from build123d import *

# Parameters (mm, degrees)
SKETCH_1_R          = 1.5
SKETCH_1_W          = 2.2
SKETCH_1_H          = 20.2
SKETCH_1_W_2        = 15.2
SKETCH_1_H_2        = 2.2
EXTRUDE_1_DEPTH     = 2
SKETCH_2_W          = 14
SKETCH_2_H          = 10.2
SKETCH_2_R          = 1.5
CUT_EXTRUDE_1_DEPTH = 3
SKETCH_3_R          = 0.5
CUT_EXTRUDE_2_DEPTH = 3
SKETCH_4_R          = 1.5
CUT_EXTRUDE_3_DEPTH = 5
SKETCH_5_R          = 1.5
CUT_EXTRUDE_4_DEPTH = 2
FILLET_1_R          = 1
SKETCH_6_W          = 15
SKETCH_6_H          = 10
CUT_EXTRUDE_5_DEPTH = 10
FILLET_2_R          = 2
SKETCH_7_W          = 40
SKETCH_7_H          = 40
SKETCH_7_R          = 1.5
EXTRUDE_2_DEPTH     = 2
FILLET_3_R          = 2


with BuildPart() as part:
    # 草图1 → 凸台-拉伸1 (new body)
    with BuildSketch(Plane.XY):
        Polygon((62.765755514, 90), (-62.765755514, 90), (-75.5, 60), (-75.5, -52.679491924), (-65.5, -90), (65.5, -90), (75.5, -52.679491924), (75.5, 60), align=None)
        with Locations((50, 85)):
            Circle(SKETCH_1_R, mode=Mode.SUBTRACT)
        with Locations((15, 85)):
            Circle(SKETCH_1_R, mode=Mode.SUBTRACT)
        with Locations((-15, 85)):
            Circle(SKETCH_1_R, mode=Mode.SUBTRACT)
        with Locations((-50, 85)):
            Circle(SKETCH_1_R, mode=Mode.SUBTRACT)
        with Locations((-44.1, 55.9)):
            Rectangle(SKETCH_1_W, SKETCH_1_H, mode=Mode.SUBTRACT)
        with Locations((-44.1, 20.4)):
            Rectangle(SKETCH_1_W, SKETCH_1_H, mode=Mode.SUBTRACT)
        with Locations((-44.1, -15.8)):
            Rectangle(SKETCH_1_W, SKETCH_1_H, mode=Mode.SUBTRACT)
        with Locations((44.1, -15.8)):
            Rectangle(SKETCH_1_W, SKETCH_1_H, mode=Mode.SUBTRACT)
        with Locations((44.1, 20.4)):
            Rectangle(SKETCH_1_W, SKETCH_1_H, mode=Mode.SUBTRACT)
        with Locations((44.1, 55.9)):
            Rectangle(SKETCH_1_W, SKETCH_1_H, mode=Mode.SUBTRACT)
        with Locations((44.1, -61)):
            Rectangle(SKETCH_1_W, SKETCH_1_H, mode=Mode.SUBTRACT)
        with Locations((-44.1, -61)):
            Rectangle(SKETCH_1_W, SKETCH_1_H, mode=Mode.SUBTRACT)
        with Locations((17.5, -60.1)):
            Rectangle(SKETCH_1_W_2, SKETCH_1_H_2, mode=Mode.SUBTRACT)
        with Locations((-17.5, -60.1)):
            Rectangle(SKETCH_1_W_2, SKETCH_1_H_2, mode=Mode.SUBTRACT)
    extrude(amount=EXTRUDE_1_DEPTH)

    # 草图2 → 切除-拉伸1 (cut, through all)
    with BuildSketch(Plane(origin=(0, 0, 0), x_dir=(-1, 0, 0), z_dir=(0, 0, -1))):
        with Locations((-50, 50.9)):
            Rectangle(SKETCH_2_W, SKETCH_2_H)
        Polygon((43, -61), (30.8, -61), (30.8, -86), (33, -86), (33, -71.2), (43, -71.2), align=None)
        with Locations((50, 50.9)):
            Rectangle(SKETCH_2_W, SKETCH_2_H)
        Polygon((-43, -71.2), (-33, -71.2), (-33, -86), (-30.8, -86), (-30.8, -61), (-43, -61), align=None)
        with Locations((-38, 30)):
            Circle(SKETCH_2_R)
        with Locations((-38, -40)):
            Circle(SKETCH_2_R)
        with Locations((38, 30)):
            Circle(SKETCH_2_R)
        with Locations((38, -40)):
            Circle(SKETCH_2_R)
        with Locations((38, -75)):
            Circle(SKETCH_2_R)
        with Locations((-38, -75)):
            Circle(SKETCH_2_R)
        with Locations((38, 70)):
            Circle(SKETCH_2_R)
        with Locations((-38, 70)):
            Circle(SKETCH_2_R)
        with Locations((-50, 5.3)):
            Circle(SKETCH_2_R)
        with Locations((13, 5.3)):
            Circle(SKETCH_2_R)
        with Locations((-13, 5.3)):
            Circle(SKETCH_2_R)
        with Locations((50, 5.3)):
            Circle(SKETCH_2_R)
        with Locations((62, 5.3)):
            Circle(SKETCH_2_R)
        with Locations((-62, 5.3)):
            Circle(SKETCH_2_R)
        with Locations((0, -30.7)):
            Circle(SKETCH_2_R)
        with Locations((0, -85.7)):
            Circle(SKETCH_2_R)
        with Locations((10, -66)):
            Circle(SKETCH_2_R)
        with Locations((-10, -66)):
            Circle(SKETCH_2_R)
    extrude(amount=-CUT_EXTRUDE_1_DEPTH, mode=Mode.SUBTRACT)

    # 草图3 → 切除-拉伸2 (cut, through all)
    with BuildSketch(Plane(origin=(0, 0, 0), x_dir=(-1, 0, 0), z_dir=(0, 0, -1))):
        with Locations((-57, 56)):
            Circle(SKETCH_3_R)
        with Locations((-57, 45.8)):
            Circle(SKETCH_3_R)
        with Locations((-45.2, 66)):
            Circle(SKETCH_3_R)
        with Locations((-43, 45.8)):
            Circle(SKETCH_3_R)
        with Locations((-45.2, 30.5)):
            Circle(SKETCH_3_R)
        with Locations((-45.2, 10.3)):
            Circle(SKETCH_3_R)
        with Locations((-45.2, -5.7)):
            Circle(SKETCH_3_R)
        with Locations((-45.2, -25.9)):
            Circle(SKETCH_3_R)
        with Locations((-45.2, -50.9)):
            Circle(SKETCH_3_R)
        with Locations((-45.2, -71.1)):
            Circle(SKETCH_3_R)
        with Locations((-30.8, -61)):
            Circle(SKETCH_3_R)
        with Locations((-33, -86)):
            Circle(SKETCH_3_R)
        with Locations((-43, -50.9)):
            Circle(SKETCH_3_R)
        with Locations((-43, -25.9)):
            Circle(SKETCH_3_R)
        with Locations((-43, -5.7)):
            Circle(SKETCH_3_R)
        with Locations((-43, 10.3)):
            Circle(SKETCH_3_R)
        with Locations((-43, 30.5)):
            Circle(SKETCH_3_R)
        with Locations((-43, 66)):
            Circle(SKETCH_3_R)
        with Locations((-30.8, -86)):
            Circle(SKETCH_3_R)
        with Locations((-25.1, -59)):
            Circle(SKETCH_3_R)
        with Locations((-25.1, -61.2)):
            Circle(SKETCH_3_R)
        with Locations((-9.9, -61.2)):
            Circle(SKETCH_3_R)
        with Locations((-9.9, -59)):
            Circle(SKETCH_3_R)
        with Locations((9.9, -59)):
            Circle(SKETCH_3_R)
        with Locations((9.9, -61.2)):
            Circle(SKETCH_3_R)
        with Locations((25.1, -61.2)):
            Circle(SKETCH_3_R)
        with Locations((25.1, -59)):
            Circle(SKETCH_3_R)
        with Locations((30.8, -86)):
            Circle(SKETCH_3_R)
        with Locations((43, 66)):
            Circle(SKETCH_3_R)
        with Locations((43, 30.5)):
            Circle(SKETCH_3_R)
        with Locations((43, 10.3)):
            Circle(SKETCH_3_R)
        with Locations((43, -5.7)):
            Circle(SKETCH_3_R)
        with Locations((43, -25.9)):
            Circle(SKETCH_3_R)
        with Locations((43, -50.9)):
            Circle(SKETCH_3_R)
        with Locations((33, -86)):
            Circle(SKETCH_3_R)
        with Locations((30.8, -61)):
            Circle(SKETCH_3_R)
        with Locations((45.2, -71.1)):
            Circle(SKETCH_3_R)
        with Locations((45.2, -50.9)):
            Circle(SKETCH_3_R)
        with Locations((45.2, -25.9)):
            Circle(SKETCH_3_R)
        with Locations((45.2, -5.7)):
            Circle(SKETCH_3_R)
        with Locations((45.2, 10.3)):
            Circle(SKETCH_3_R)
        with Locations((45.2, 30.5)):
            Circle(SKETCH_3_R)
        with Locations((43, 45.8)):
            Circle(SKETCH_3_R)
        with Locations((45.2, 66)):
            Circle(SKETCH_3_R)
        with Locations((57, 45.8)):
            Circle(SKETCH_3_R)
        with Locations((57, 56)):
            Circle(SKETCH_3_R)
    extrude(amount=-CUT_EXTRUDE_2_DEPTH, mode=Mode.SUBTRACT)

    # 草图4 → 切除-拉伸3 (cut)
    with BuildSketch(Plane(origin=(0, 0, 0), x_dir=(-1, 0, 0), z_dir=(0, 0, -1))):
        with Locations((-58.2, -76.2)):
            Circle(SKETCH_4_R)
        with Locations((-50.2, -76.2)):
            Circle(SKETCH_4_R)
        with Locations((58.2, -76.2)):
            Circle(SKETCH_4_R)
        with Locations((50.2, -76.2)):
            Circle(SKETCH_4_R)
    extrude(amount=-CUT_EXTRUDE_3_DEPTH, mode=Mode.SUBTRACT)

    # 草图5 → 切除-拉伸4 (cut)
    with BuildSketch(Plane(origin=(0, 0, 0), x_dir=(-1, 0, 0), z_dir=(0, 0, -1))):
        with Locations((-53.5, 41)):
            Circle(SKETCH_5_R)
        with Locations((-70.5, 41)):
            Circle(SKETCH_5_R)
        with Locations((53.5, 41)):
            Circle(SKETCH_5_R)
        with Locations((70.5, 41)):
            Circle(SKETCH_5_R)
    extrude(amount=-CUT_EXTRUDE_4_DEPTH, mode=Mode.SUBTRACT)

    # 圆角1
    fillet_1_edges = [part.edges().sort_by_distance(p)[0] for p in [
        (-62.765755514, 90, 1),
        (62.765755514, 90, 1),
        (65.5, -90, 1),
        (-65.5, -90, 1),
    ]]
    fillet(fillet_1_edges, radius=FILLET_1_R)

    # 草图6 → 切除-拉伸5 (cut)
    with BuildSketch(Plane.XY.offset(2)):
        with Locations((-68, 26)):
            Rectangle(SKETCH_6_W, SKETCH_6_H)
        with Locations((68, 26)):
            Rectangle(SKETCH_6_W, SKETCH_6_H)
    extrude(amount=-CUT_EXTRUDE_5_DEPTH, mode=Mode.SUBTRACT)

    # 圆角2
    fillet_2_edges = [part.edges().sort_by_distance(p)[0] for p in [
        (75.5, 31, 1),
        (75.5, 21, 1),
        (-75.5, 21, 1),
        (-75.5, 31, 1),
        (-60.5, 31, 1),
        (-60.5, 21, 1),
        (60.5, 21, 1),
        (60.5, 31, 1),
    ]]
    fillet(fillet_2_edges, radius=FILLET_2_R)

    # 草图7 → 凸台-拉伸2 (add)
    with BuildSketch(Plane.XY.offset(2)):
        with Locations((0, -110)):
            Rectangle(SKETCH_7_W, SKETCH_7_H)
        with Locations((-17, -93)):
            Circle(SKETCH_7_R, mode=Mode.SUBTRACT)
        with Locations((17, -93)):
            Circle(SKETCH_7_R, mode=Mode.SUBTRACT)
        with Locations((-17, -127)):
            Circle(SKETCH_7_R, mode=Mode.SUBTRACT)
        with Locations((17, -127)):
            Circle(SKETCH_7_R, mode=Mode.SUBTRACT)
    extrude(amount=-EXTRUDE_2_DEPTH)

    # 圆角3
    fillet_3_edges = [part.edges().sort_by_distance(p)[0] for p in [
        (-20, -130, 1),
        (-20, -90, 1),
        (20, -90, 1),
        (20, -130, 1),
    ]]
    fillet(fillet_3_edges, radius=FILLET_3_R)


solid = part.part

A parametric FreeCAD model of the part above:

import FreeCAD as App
import Part
import Sketcher
from FreeCAD import Vector
Q = App.Units.Quantity


def edges_at(feature, points):
    """Names of the edges that pass closest to the given points."""
    edges = feature.Shape.Edges
    near = lambda p: min(range(len(edges)), key=lambda i: edges[i].distToShape(Part.Vertex(*p))[0])
    return sorted({f"Edge{near(p) + 1}" for p in points})

doc = App.newDocument("Part")
body = doc.addObject("PartDesign::Body", "Body")

# Sketch on XY plane
sketch1 = body.newObject("Sketcher::SketchObject", "Sketch")
sketch1.AttachmentSupport = (doc.getObject("XY_Plane"), [""])
sketch1.MapMode = "FlatFace"
sketch1.addGeometry([
    Part.LineSegment(Vector(62.8, 90, 0), Vector(-62.8, 90, 0)),  # 0
    Part.LineSegment(Vector(-62.8, 90, 0), Vector(-75.5, 60, 0)),  # 1
    Part.LineSegment(Vector(-75.5, 60, 0), Vector(-75.5, -52.7, 0)),  # 2
    Part.LineSegment(Vector(-75.5, -52.7, 0), Vector(-65.5, -90, 0)),  # 3
    Part.LineSegment(Vector(-65.5, -90, 0), Vector(65.5, -90, 0)),  # 4
    Part.LineSegment(Vector(65.5, -90, 0), Vector(75.5, -52.7, 0)),  # 5
    Part.LineSegment(Vector(75.5, -52.7, 0), Vector(75.5, 60, 0)),  # 6
    Part.LineSegment(Vector(75.5, 60, 0), Vector(62.8, 90, 0)),  # 7
    Part.LineSegment(Vector(-43, -71.1, 0), Vector(-45.2, -71.1, 0)),  # 8
    Part.LineSegment(Vector(-45.2, -71.1, 0), Vector(-45.2, -50.9, 0)),  # 9
    Part.LineSegment(Vector(-45.2, -50.9, 0), Vector(-43, -50.9, 0)),  # 10
    Part.LineSegment(Vector(-43, -50.9, 0), Vector(-43, -71.1, 0)),  # 11
    Part.LineSegment(Vector(-9.9, -61.2, 0), Vector(-25.1, -61.2, 0)),  # 12
    Part.LineSegment(Vector(-25.1, -61.2, 0), Vector(-25.1, -59, 0)),  # 13
    Part.LineSegment(Vector(-25.1, -59, 0), Vector(-9.9, -59, 0)),  # 14
    Part.LineSegment(Vector(-9.9, -59, 0), Vector(-9.9, -61.2, 0)),  # 15
    Part.LineSegment(Vector(-43, -25.9, 0), Vector(-45.2, -25.9, 0)),  # 16
    Part.LineSegment(Vector(-45.2, -25.9, 0), Vector(-45.2, -5.7, 0)),  # 17
    Part.LineSegment(Vector(-45.2, -5.7, 0), Vector(-43, -5.7, 0)),  # 18
    Part.LineSegment(Vector(-43, -5.7, 0), Vector(-43, -25.9, 0)),  # 19
    Part.LineSegment(Vector(25.1, -61.2, 0), Vector(9.9, -61.2, 0)),  # 20
    Part.LineSegment(Vector(9.9, -61.2, 0), Vector(9.9, -59, 0)),  # 21
    Part.LineSegment(Vector(9.9, -59, 0), Vector(25.1, -59, 0)),  # 22
    Part.LineSegment(Vector(25.1, -59, 0), Vector(25.1, -61.2, 0)),  # 23
    Part.LineSegment(Vector(45.2, -71.1, 0), Vector(43, -71.1, 0)),  # 24
    Part.LineSegment(Vector(43, -71.1, 0), Vector(43, -50.9, 0)),  # 25
    Part.LineSegment(Vector(43, -50.9, 0), Vector(45.2, -50.9, 0)),  # 26
    Part.LineSegment(Vector(45.2, -50.9, 0), Vector(45.2, -71.1, 0)),  # 27
    Part.LineSegment(Vector(45.2, -25.9, 0), Vector(43, -25.9, 0)),  # 28
    Part.LineSegment(Vector(43, -25.9, 0), Vector(43, -5.7, 0)),  # 29
    Part.LineSegment(Vector(43, -5.7, 0), Vector(45.2, -5.7, 0)),  # 30
    Part.LineSegment(Vector(45.2, -5.7, 0), Vector(45.2, -25.9, 0)),  # 31
    Part.LineSegment(Vector(-43, 10.3, 0), Vector(-45.2, 10.3, 0)),  # 32
    Part.LineSegment(Vector(-45.2, 10.3, 0), Vector(-45.2, 30.5, 0)),  # 33
    Part.LineSegment(Vector(-45.2, 30.5, 0), Vector(-43, 30.5, 0)),  # 34
    Part.LineSegment(Vector(-43, 30.5, 0), Vector(-43, 10.3, 0)),  # 35
    Part.LineSegment(Vector(-43, 45.8, 0), Vector(-45.2, 45.8, 0)),  # 36
    Part.LineSegment(Vector(-45.2, 45.8, 0), Vector(-45.2, 66, 0)),  # 37
    Part.LineSegment(Vector(-45.2, 66, 0), Vector(-43, 66, 0)),  # 38
    Part.LineSegment(Vector(-43, 66, 0), Vector(-43, 45.8, 0)),  # 39
    Part.Circle(Vector(-50, 85, 0), Vector(0, 0, 1), 1.5),  # 40
    Part.Circle(Vector(-15, 85, 0), Vector(0, 0, 1), 1.5),  # 41
    Part.LineSegment(Vector(45.2, 10.3, 0), Vector(43, 10.3, 0)),  # 42
    Part.LineSegment(Vector(43, 10.3, 0), Vector(43, 30.5, 0)),  # 43
    Part.LineSegment(Vector(43, 30.5, 0), Vector(45.2, 30.5, 0)),  # 44
    Part.LineSegment(Vector(45.2, 30.5, 0), Vector(45.2, 10.3, 0)),  # 45
    Part.Circle(Vector(15, 85, 0), Vector(0, 0, 1), 1.5),  # 46
    Part.LineSegment(Vector(45.2, 45.8, 0), Vector(43, 45.8, 0)),  # 47
    Part.LineSegment(Vector(43, 45.8, 0), Vector(43, 66, 0)),  # 48
    Part.LineSegment(Vector(43, 66, 0), Vector(45.2, 66, 0)),  # 49
    Part.LineSegment(Vector(45.2, 66, 0), Vector(45.2, 45.8, 0)),  # 50
    Part.Circle(Vector(50, 85, 0), Vector(0, 0, 1), 1.5),  # 51
], False)
sketch1.addConstraint([
    Sketcher.Constraint("Coincident", 0, 2, 1, 1),
    Sketcher.Constraint("Coincident", 1, 2, 2, 1),
    Sketcher.Constraint("Coincident", 2, 2, 3, 1),
    Sketcher.Constraint("Coincident", 3, 2, 4, 1),
    Sketcher.Constraint("Coincident", 4, 2, 5, 1),
    Sketcher.Constraint("Coincident", 5, 2, 6, 1),
    Sketcher.Constraint("Coincident", 6, 2, 7, 1),
    Sketcher.Constraint("Coincident", 7, 2, 0, 1),
    Sketcher.Constraint("Coincident", 8, 2, 9, 1),
    Sketcher.Constraint("Coincident", 9, 2, 10, 1),
    Sketcher.Constraint("Coincident", 10, 2, 11, 1),
    Sketcher.Constraint("Coincident", 11, 2, 8, 1),
    Sketcher.Constraint("Coincident", 12, 2, 13, 1),
    Sketcher.Constraint("Coincident", 13, 2, 14, 1),
    Sketcher.Constraint("Coincident", 14, 2, 15, 1),
    Sketcher.Constraint("Coincident", 15, 2, 12, 1),
    Sketcher.Constraint("Coincident", 16, 2, 17, 1),
    Sketcher.Constraint("Coincident", 17, 2, 18, 1),
    Sketcher.Constraint("Coincident", 18, 2, 19, 1),
    Sketcher.Constraint("Coincident", 19, 2, 16, 1),
    Sketcher.Constraint("Coincident", 20, 2, 21, 1),
    Sketcher.Constraint("Coincident", 21, 2, 22, 1),
    Sketcher.Constraint("Coincident", 22, 2, 23, 1),
    Sketcher.Constraint("Coincident", 23, 2, 20, 1),
    Sketcher.Constraint("Coincident", 24, 2, 25, 1),
    Sketcher.Constraint("Coincident", 25, 2, 26, 1),
    Sketcher.Constraint("Coincident", 26, 2, 27, 1),
    Sketcher.Constraint("Coincident", 27, 2, 24, 1),
    Sketcher.Constraint("Coincident", 28, 2, 29, 1),
    Sketcher.Constraint("Coincident", 29, 2, 30, 1),
    Sketcher.Constraint("Coincident", 30, 2, 31, 1),
    Sketcher.Constraint("Coincident", 31, 2, 28, 1),
    Sketcher.Constraint("Coincident", 32, 2, 33, 1),
    Sketcher.Constraint("Coincident", 33, 2, 34, 1),
    Sketcher.Constraint("Coincident", 34, 2, 35, 1),
    Sketcher.Constraint("Coincident", 35, 2, 32, 1),
    Sketcher.Constraint("Coincident", 36, 2, 37, 1),
    Sketcher.Constraint("Coincident", 37, 2, 38, 1),
    Sketcher.Constraint("Coincident", 38, 2, 39, 1),
    Sketcher.Constraint("Coincident", 39, 2, 36, 1),
    Sketcher.Constraint("Coincident", 42, 2, 43, 1),
    Sketcher.Constraint("Coincident", 43, 2, 44, 1),
    Sketcher.Constraint("Coincident", 44, 2, 45, 1),
    Sketcher.Constraint("Coincident", 45, 2, 42, 1),
    Sketcher.Constraint("Coincident", 47, 2, 48, 1),
    Sketcher.Constraint("Coincident", 48, 2, 49, 1),
    Sketcher.Constraint("Coincident", 49, 2, 50, 1),
    Sketcher.Constraint("Coincident", 50, 2, 47, 1),
    Sketcher.Constraint("Horizontal", 0),
    Sketcher.Constraint("Vertical", 2),
    Sketcher.Constraint("Horizontal", 4),
    Sketcher.Constraint("Vertical", 6),
    Sketcher.Constraint("Horizontal", 8),
    Sketcher.Constraint("Vertical", 9),
    Sketcher.Constraint("Horizontal", 10),
    Sketcher.Constraint("Vertical", 11),
    Sketcher.Constraint("Horizontal", 12),
    Sketcher.Constraint("Vertical", 13),
    Sketcher.Constraint("Horizontal", 14),
    Sketcher.Constraint("Vertical", 15),
    Sketcher.Constraint("Horizontal", 16),
    Sketcher.Constraint("Vertical", 17),
    Sketcher.Constraint("Horizontal", 18),
    Sketcher.Constraint("Vertical", 19),
    Sketcher.Constraint("Horizontal", 20),
    Sketcher.Constraint("Vertical", 21),
    Sketcher.Constraint("Horizontal", 22),
    Sketcher.Constraint("Vertical", 23),
    Sketcher.Constraint("Horizontal", 24),
    Sketcher.Constraint("Vertical", 25),
    Sketcher.Constraint("Horizontal", 26),
    Sketcher.Constraint("Vertical", 27),
    Sketcher.Constraint("Horizontal", 28),
    Sketcher.Constraint("Vertical", 29),
    Sketcher.Constraint("Horizontal", 30),
    Sketcher.Constraint("Vertical", 31),
    Sketcher.Constraint("Horizontal", 32),
    Sketcher.Constraint("Vertical", 33),
    Sketcher.Constraint("Horizontal", 34),
    Sketcher.Constraint("Vertical", 35),
    Sketcher.Constraint("Horizontal", 36),
    Sketcher.Constraint("Vertical", 37),
    Sketcher.Constraint("Horizontal", 38),
    Sketcher.Constraint("Vertical", 39),
    Sketcher.Constraint("Horizontal", 42),
    Sketcher.Constraint("Vertical", 43),
    Sketcher.Constraint("Horizontal", 44),
    Sketcher.Constraint("Vertical", 45),
    Sketcher.Constraint("Horizontal", 47),
    Sketcher.Constraint("Vertical", 48),
    Sketcher.Constraint("Horizontal", 49),
    Sketcher.Constraint("Vertical", 50),
    Sketcher.Constraint("Equal", 40, 41),
    Sketcher.Constraint("Equal", 41, 46),
    Sketcher.Constraint("Equal", 46, 51),
    Sketcher.Constraint("Symmetric", 41, 3, 46, 3, -2),
    Sketcher.Constraint("Symmetric", 40, 3, 51, 3, -2),
    Sketcher.Constraint("Symmetric", 2, 2, 5, 2, -2),
    Sketcher.Constraint("Symmetric", 15, 2, 20, 2, -2),
    Sketcher.Constraint("Symmetric", 13, 2, 22, 2, -2),
    Sketcher.Constraint("Symmetric", 11, 2, 24, 2, -2),
    Sketcher.Constraint("Symmetric", 9, 2, 26, 2, -2),
    Sketcher.Constraint("Symmetric", 19, 2, 28, 2, -2),
    Sketcher.Constraint("Symmetric", 17, 2, 30, 2, -2),
    Sketcher.Constraint("Symmetric", 35, 2, 42, 2, -2),
    Sketcher.Constraint("Symmetric", 33, 2, 44, 2, -2),
    Sketcher.Constraint("Symmetric", 39, 2, 47, 2, -2),
    Sketcher.Constraint("Symmetric", 37, 2, 49, 2, -2),
    Sketcher.Constraint("Horizontal", 40, 3, 41, 3),
    Sketcher.Constraint("Horizontal", 1, 2, 6, 2),
    Sketcher.Constraint("Vertical", 9, 2, 16, 2),
    Sketcher.Constraint("Vertical", 11, 2, 18, 2),
    Sketcher.Constraint("Vertical", 17, 2, 32, 2),
    Sketcher.Constraint("Vertical", 19, 2, 34, 2),
    Sketcher.Constraint("Vertical", 33, 2, 36, 2),
    Sketcher.Constraint("Vertical", 35, 2, 38, 2),
    Sketcher.Constraint("Equal", 49, 13),
    Sketcher.Constraint("Equal", 11, 17),
    Sketcher.Constraint("Equal", 31, 33),
    Sketcher.Constraint("Equal", 35, 37),
    Sketcher.Constraint("Equal", 3, 5),
    Sketcher.Constraint("Equal", 1, 7),
    Sketcher.Constraint("Diameter", 40, 3.0),
    Sketcher.Constraint("DistanceX", 4, 1, 4, 2, 131.0),
    Sketcher.Constraint("Angle", 1, Q("-113 deg")),
    Sketcher.Constraint("Angle", 3, Q("-75 deg")),
    Sketcher.Constraint("DistanceX", 8, 2, 8, 1, 2.2),
    Sketcher.Constraint("DistanceX", 12, 2, 12, 1, 15.2),
    Sketcher.Constraint("DistanceY", 9, 1, 9, 2, 20.2),
    Sketcher.Constraint("DistanceX", 40, 3, -1, 1, 50.0),
    Sketcher.Constraint("DistanceY", -1, 1, 40, 3, 85.0),
    Sketcher.Constraint("DistanceX", 41, 3, -1, 1, 15.0),
    Sketcher.Constraint("DistanceY", -1, 1, 0, 2, 90.0),
    Sketcher.Constraint("DistanceY", -1, 1, 1, 2, 60.0),
    Sketcher.Constraint("DistanceY", 3, 2, -1, 1, 90.0),
    Sketcher.Constraint("DistanceX", 10, 2, -1, 1, 43.0),
    Sketcher.Constraint("DistanceY", 13, 2, -1, 1, 59.0),
    Sketcher.Constraint("DistanceY", -1, 1, 37, 2, 66.0),
    Sketcher.Constraint("DistanceX", 2, 2, 3, 2, 10.0),
    Sketcher.Constraint("DistanceY", 9, 2, 16, 2, 25.0),
    Sketcher.Constraint("DistanceX", 12, 2, 20, 2, 35.0),
    Sketcher.Constraint("DistanceY", 17, 2, 32, 2, 16.0),
    Sketcher.Constraint("DistanceY", 8, 2, -1, 1, 71.1),
])
pad1 = body.newObject("PartDesign::Pad", "Pad")
pad1.Profile = sketch1
pad1.Length = 2

# Sketch on XY plane
sketch2 = body.newObject("Sketcher::SketchObject", "Sketch001")
sketch2.AttachmentSupport = (doc.getObject("XY_Plane"), [""])
sketch2.MapMode = "FlatFace"
sketch2.addGeometry([
    Part.LineSegment(Vector(57, 56, 0), Vector(57, 45.8, 0)),  # 0
    Part.LineSegment(Vector(57, 45.8, 0), Vector(43, 45.8, 0)),  # 1
    Part.LineSegment(Vector(43, 45.8, 0), Vector(43, 56, 0)),  # 2
    Part.LineSegment(Vector(43, 56, 0), Vector(57, 56, 0)),  # 3
    Part.LineSegment(Vector(-43, -61, 0), Vector(-30.8, -61, 0)),  # 4
    Part.LineSegment(Vector(-30.8, -61, 0), Vector(-30.8, -86, 0)),  # 5
    Part.LineSegment(Vector(-30.8, -86, 0), Vector(-33, -86, 0)),  # 6
    Part.LineSegment(Vector(-33, -86, 0), Vector(-33, -71.2, 0)),  # 7
    Part.LineSegment(Vector(-33, -71.2, 0), Vector(-43, -71.2, 0)),  # 8
    Part.LineSegment(Vector(-43, -71.2, 0), Vector(-43, -61, 0)),  # 9
    Part.LineSegment(Vector(-43, 56, 0), Vector(-43, 45.8, 0)),  # 10
    Part.LineSegment(Vector(-43, 45.8, 0), Vector(-57, 45.8, 0)),  # 11
    Part.LineSegment(Vector(-57, 45.8, 0), Vector(-57, 56, 0)),  # 12
    Part.LineSegment(Vector(-57, 56, 0), Vector(-43, 56, 0)),  # 13
    Part.LineSegment(Vector(43, -71.2, 0), Vector(33, -71.2, 0)),  # 14
    Part.LineSegment(Vector(33, -71.2, 0), Vector(33, -86, 0)),  # 15
    Part.LineSegment(Vector(33, -86, 0), Vector(30.8, -86, 0)),  # 16
    Part.LineSegment(Vector(30.8, -86, 0), Vector(30.8, -61, 0)),  # 17
    Part.LineSegment(Vector(30.8, -61, 0), Vector(43, -61, 0)),  # 18
    Part.LineSegment(Vector(43, -61, 0), Vector(43, -71.2, 0)),  # 19
    Part.Circle(Vector(38, 30, 0), Vector(0, 0, 1), 1.5),  # 20
    Part.Circle(Vector(38, -40, 0), Vector(0, 0, 1), 1.5),  # 21
    Part.Circle(Vector(-38, 30, 0), Vector(0, 0, 1), 1.5),  # 22
    Part.Circle(Vector(-38, -40, 0), Vector(0, 0, 1), 1.5),  # 23
    Part.Circle(Vector(-38, -75, 0), Vector(0, 0, 1), 1.5),  # 24
    Part.Circle(Vector(38, -75, 0), Vector(0, 0, 1), 1.5),  # 25
    Part.Circle(Vector(-38, 70, 0), Vector(0, 0, 1), 1.5),  # 26
    Part.Circle(Vector(38, 70, 0), Vector(0, 0, 1), 1.5),  # 27
    Part.Circle(Vector(50, 5.3, 0), Vector(0, 0, 1), 1.5),  # 28
    Part.Circle(Vector(-13, 5.3, 0), Vector(0, 0, 1), 1.5),  # 29
    Part.Circle(Vector(13, 5.3, 0), Vector(0, 0, 1), 1.5),  # 30
    Part.Circle(Vector(-50, 5.3, 0), Vector(0, 0, 1), 1.5),  # 31
    Part.Circle(Vector(-62, 5.3, 0), Vector(0, 0, 1), 1.5),  # 32
    Part.Circle(Vector(62, 5.3, 0), Vector(0, 0, 1), 1.5),  # 33
    Part.Circle(Vector(0, -30.7, 0), Vector(0, 0, 1), 1.5),  # 34
    Part.Circle(Vector(0, -85.7, 0), Vector(0, 0, 1), 1.5),  # 35
    Part.Circle(Vector(-10, -66, 0), Vector(0, 0, 1), 1.5),  # 36
    Part.Circle(Vector(10, -66, 0), Vector(0, 0, 1), 1.5),  # 37
], False)
sketch2.addConstraint([
    Sketcher.Constraint("Coincident", 0, 2, 1, 1),
    Sketcher.Constraint("Coincident", 1, 2, 2, 1),
    Sketcher.Constraint("Coincident", 2, 2, 3, 1),
    Sketcher.Constraint("Coincident", 3, 2, 0, 1),
    Sketcher.Constraint("Coincident", 4, 2, 5, 1),
    Sketcher.Constraint("Coincident", 5, 2, 6, 1),
    Sketcher.Constraint("Coincident", 6, 2, 7, 1),
    Sketcher.Constraint("Coincident", 7, 2, 8, 1),
    Sketcher.Constraint("Coincident", 8, 2, 9, 1),
    Sketcher.Constraint("Coincident", 9, 2, 4, 1),
    Sketcher.Constraint("Coincident", 10, 2, 11, 1),
    Sketcher.Constraint("Coincident", 11, 2, 12, 1),
    Sketcher.Constraint("Coincident", 12, 2, 13, 1),
    Sketcher.Constraint("Coincident", 13, 2, 10, 1),
    Sketcher.Constraint("Coincident", 14, 2, 15, 1),
    Sketcher.Constraint("Coincident", 15, 2, 16, 1),
    Sketcher.Constraint("Coincident", 16, 2, 17, 1),
    Sketcher.Constraint("Coincident", 17, 2, 18, 1),
    Sketcher.Constraint("Coincident", 18, 2, 19, 1),
    Sketcher.Constraint("Coincident", 19, 2, 14, 1),
    Sketcher.Constraint("Vertical", 0),
    Sketcher.Constraint("Horizontal", 1),
    Sketcher.Constraint("Vertical", 2),
    Sketcher.Constraint("Horizontal", 3),
    Sketcher.Constraint("Horizontal", 4),
    Sketcher.Constraint("Vertical", 5),
    Sketcher.Constraint("Horizontal", 6),
    Sketcher.Constraint("Vertical", 7),
    Sketcher.Constraint("Horizontal", 8),
    Sketcher.Constraint("Vertical", 9),
    Sketcher.Constraint("Vertical", 10),
    Sketcher.Constraint("Horizontal", 11),
    Sketcher.Constraint("Vertical", 12),
    Sketcher.Constraint("Horizontal", 13),
    Sketcher.Constraint("Horizontal", 14),
    Sketcher.Constraint("Vertical", 15),
    Sketcher.Constraint("Horizontal", 16),
    Sketcher.Constraint("Vertical", 17),
    Sketcher.Constraint("Horizontal", 18),
    Sketcher.Constraint("Vertical", 19),
    Sketcher.Constraint("Equal", 20, 21),
    Sketcher.Constraint("Equal", 21, 22),
    Sketcher.Constraint("Equal", 22, 23),
    Sketcher.Constraint("Equal", 23, 24),
    Sketcher.Constraint("Equal", 24, 25),
    Sketcher.Constraint("Equal", 25, 26),
    Sketcher.Constraint("Equal", 26, 27),
    Sketcher.Constraint("Equal", 27, 28),
    Sketcher.Constraint("Equal", 28, 29),
    Sketcher.Constraint("Equal", 29, 30),
    Sketcher.Constraint("Equal", 30, 31),
    Sketcher.Constraint("Equal", 31, 32),
    Sketcher.Constraint("Equal", 32, 33),
    Sketcher.Constraint("Equal", 33, 34),
    Sketcher.Constraint("Equal", 34, 35),
    Sketcher.Constraint("Equal", 35, 36),
    Sketcher.Constraint("Equal", 36, 37),
    Sketcher.Constraint("Symmetric", 20, 3, 22, 3, -2),
    Sketcher.Constraint("Symmetric", 21, 3, 23, 3, -2),
    Sketcher.Constraint("Symmetric", 24, 3, 25, 3, -2),
    Sketcher.Constraint("Symmetric", 26, 3, 27, 3, -2),
    Sketcher.Constraint("Symmetric", 29, 3, 30, 3, -2),
    Sketcher.Constraint("Symmetric", 28, 3, 31, 3, -2),
    Sketcher.Constraint("Symmetric", 32, 3, 33, 3, -2),
    Sketcher.Constraint("Symmetric", 36, 3, 37, 3, -2),
    Sketcher.Constraint("Symmetric", 1, 2, 10, 2, -2),
    Sketcher.Constraint("Symmetric", 3, 2, 12, 2, -2),
    Sketcher.Constraint("Symmetric", 7, 2, 14, 2, -2),
    Sketcher.Constraint("Symmetric", 5, 2, 16, 2, -2),
    Sketcher.Constraint("Symmetric", 9, 2, 18, 2, -2),
    Sketcher.Constraint("PointOnObject", 34, 3, -2),
    Sketcher.Constraint("PointOnObject", 35, 3, -2),
    Sketcher.Constraint("Horizontal", 28, 3, 29, 3),
    Sketcher.Constraint("Horizontal", 31, 3, 32, 3),
    Sketcher.Constraint("Vertical", 20, 3, 21, 3),
    Sketcher.Constraint("Vertical", 23, 3, 24, 3),
    Sketcher.Constraint("Vertical", 24, 3, 26, 3),
    Sketcher.Constraint("Vertical", 9, 2, 10, 2),
    Sketcher.Constraint("Equal", 2, 9),
    Sketcher.Constraint("Diameter", 20, 3.0),
    Sketcher.Constraint("DistanceX", 1, 2, 1, 1, 14.0),
    Sketcher.Constraint("DistanceX", 8, 2, 8, 1, 10.0),
    Sketcher.Constraint("DistanceY", 5, 2, 5, 1, 25.0),
    Sketcher.Constraint("DistanceX", 4, 1, 4, 2, 12.2),
    Sketcher.Constraint("DistanceY", 0, 2, 0, 1, 10.2),
    Sketcher.Constraint("DistanceX", -1, 1, 20, 3, 38.0),
    Sketcher.Constraint("DistanceY", -1, 1, 20, 3, 30.0),
    Sketcher.Constraint("DistanceY", 21, 3, -1, 1, 40.0),
    Sketcher.Constraint("DistanceY", 24, 3, -1, 1, 75.0),
    Sketcher.Constraint("DistanceY", -1, 1, 26, 3, 70.0),
    Sketcher.Constraint("DistanceX", -1, 1, 28, 3, 50.0),
    Sketcher.Constraint("DistanceX", 29, 3, -1, 1, 13.0),
    Sketcher.Constraint("DistanceX", 32, 3, -1, 1, 62.0),
    Sketcher.Constraint("DistanceX", 36, 3, -1, 1, 10.0),
    Sketcher.Constraint("DistanceY", 36, 3, -1, 1, 66.0),
    Sketcher.Constraint("DistanceX", -1, 1, 0, 2, 57.0),
    Sketcher.Constraint("DistanceY", -1, 1, 2, 2, 56.0),
    Sketcher.Constraint("DistanceY", 4, 2, -1, 1, 61.0),
    Sketcher.Constraint("DistanceY", 34, 3, 29, 3, 36.0),
    Sketcher.Constraint("DistanceY", 35, 3, 34, 3, 55.0),
    Sketcher.Constraint("DistanceY", -1, 1, 28, 3, 5.3),
])
pocket1 = body.newObject("PartDesign::Pocket", "Pocket")
pocket1.Profile = sketch2
pocket1.Type = "ThroughAll"
pocket1.Reversed = True

# Sketch on XY plane
sketch3 = body.newObject("Sketcher::SketchObject", "Sketch002")
sketch3.AttachmentSupport = (doc.getObject("XY_Plane"), [""])
sketch3.MapMode = "FlatFace"
sketch3.addGeometry([
    Part.Circle(Vector(57, 56, 0), Vector(0, 0, 1), 0.5),  # 0
    Part.Circle(Vector(57, 45.8, 0), Vector(0, 0, 1), 0.5),  # 1
    Part.Circle(Vector(45.2, 66, 0), Vector(0, 0, 1), 0.5),  # 2
    Part.Circle(Vector(43, 45.8, 0), Vector(0, 0, 1), 0.5),  # 3
    Part.Circle(Vector(45.2, 30.5, 0), Vector(0, 0, 1), 0.5),  # 4
    Part.Circle(Vector(45.2, 10.3, 0), Vector(0, 0, 1), 0.5),  # 5
    Part.Circle(Vector(45.2, -5.7, 0), Vector(0, 0, 1), 0.5),  # 6
    Part.Circle(Vector(45.2, -25.9, 0), Vector(0, 0, 1), 0.5),  # 7
    Part.Circle(Vector(45.2, -50.9, 0), Vector(0, 0, 1), 0.5),  # 8
    Part.Circle(Vector(45.2, -71.1, 0), Vector(0, 0, 1), 0.5),  # 9
    Part.Circle(Vector(30.8, -61, 0), Vector(0, 0, 1), 0.5),  # 10
    Part.Circle(Vector(33, -86, 0), Vector(0, 0, 1), 0.5),  # 11
    Part.Circle(Vector(43, -50.9, 0), Vector(0, 0, 1), 0.5),  # 12
    Part.Circle(Vector(43, -25.9, 0), Vector(0, 0, 1), 0.5),  # 13
    Part.Circle(Vector(43, -5.7, 0), Vector(0, 0, 1), 0.5),  # 14
    Part.Circle(Vector(43, 10.3, 0), Vector(0, 0, 1), 0.5),  # 15
    Part.Circle(Vector(43, 30.5, 0), Vector(0, 0, 1), 0.5),  # 16
    Part.Circle(Vector(43, 66, 0), Vector(0, 0, 1), 0.5),  # 17
    Part.Circle(Vector(30.8, -86, 0), Vector(0, 0, 1), 0.5),  # 18
    Part.Circle(Vector(25.1, -59, 0), Vector(0, 0, 1), 0.5),  # 19
    Part.Circle(Vector(25.1, -61.2, 0), Vector(0, 0, 1), 0.5),  # 20
    Part.Circle(Vector(9.9, -61.2, 0), Vector(0, 0, 1), 0.5),  # 21
    Part.Circle(Vector(9.9, -59, 0), Vector(0, 0, 1), 0.5),  # 22
    Part.Circle(Vector(-9.9, -59, 0), Vector(0, 0, 1), 0.5),  # 23
    Part.Circle(Vector(-9.9, -61.2, 0), Vector(0, 0, 1), 0.5),  # 24
    Part.Circle(Vector(-25.1, -61.2, 0), Vector(0, 0, 1), 0.5),  # 25
    Part.Circle(Vector(-25.1, -59, 0), Vector(0, 0, 1), 0.5),  # 26
    Part.Circle(Vector(-30.8, -86, 0), Vector(0, 0, 1), 0.5),  # 27
    Part.Circle(Vector(-43, 66, 0), Vector(0, 0, 1), 0.5),  # 28
    Part.Circle(Vector(-43, 30.5, 0), Vector(0, 0, 1), 0.5),  # 29
    Part.Circle(Vector(-43, 10.3, 0), Vector(0, 0, 1), 0.5),  # 30
    Part.Circle(Vector(-43, -5.7, 0), Vector(0, 0, 1), 0.5),  # 31
    Part.Circle(Vector(-43, -25.9, 0), Vector(0, 0, 1), 0.5),  # 32
    Part.Circle(Vector(-43, -50.9, 0), Vector(0, 0, 1), 0.5),  # 33
    Part.Circle(Vector(-33, -86, 0), Vector(0, 0, 1), 0.5),  # 34
    Part.Circle(Vector(-30.8, -61, 0), Vector(0, 0, 1), 0.5),  # 35
    Part.Circle(Vector(-45.2, -71.1, 0), Vector(0, 0, 1), 0.5),  # 36
    Part.Circle(Vector(-45.2, -50.9, 0), Vector(0, 0, 1), 0.5),  # 37
    Part.Circle(Vector(-45.2, -25.9, 0), Vector(0, 0, 1), 0.5),  # 38
    Part.Circle(Vector(-45.2, -5.7, 0), Vector(0, 0, 1), 0.5),  # 39
    Part.Circle(Vector(-45.2, 10.3, 0), Vector(0, 0, 1), 0.5),  # 40
    Part.Circle(Vector(-45.2, 30.5, 0), Vector(0, 0, 1), 0.5),  # 41
    Part.Circle(Vector(-43, 45.8, 0), Vector(0, 0, 1), 0.5),  # 42
    Part.Circle(Vector(-45.2, 66, 0), Vector(0, 0, 1), 0.5),  # 43
    Part.Circle(Vector(-57, 45.8, 0), Vector(0, 0, 1), 0.5),  # 44
    Part.Circle(Vector(-57, 56, 0), Vector(0, 0, 1), 0.5),  # 45
], False)
sketch3.addConstraint([
    Sketcher.Constraint("Equal", 0, 1),
    Sketcher.Constraint("Equal", 1, 2),
    Sketcher.Constraint("Equal", 2, 3),
    Sketcher.Constraint("Equal", 3, 4),
    Sketcher.Constraint("Equal", 4, 5),
    Sketcher.Constraint("Equal", 5, 6),
    Sketcher.Constraint("Equal", 6, 7),
    Sketcher.Constraint("Equal", 7, 8),
    Sketcher.Constraint("Equal", 8, 9),
    Sketcher.Constraint("Equal", 9, 10),
    Sketcher.Constraint("Equal", 10, 11),
    Sketcher.Constraint("Equal", 11, 12),
    Sketcher.Constraint("Equal", 12, 13),
    Sketcher.Constraint("Equal", 13, 14),
    Sketcher.Constraint("Equal", 14, 15),
    Sketcher.Constraint("Equal", 15, 16),
    Sketcher.Constraint("Equal", 16, 17),
    Sketcher.Constraint("Equal", 17, 18),
    Sketcher.Constraint("Equal", 18, 19),
    Sketcher.Constraint("Equal", 19, 20),
    Sketcher.Constraint("Equal", 20, 21),
    Sketcher.Constraint("Equal", 21, 22),
    Sketcher.Constraint("Equal", 22, 23),
    Sketcher.Constraint("Equal", 23, 24),
    Sketcher.Constraint("Equal", 24, 25),
    Sketcher.Constraint("Equal", 25, 26),
    Sketcher.Constraint("Equal", 26, 27),
    Sketcher.Constraint("Equal", 27, 28),
    Sketcher.Constraint("Equal", 28, 29),
    Sketcher.Constraint("Equal", 29, 30),
    Sketcher.Constraint("Equal", 30, 31),
    Sketcher.Constraint("Equal", 31, 32),
    Sketcher.Constraint("Equal", 32, 33),
    Sketcher.Constraint("Equal", 33, 34),
    Sketcher.Constraint("Equal", 34, 35),
    Sketcher.Constraint("Equal", 35, 36),
    Sketcher.Constraint("Equal", 36, 37),
    Sketcher.Constraint("Equal", 37, 38),
    Sketcher.Constraint("Equal", 38, 39),
    Sketcher.Constraint("Equal", 39, 40),
    Sketcher.Constraint("Equal", 40, 41),
    Sketcher.Constraint("Equal", 41, 42),
    Sketcher.Constraint("Equal", 42, 43),
    Sketcher.Constraint("Equal", 43, 44),
    Sketcher.Constraint("Equal", 44, 45),
    Sketcher.Constraint("Symmetric", 22, 3, 23, 3, -2),
    Sketcher.Constraint("Symmetric", 21, 3, 24, 3, -2),
    Sketcher.Constraint("Symmetric", 20, 3, 25, 3, -2),
    Sketcher.Constraint("Symmetric", 19, 3, 26, 3, -2),
    Sketcher.Constraint("Symmetric", 18, 3, 27, 3, -2),
    Sketcher.Constraint("Symmetric", 17, 3, 28, 3, -2),
    Sketcher.Constraint("Symmetric", 16, 3, 29, 3, -2),
    Sketcher.Constraint("Symmetric", 15, 3, 30, 3, -2),
    Sketcher.Constraint("Symmetric", 14, 3, 31, 3, -2),
    Sketcher.Constraint("Symmetric", 13, 3, 32, 3, -2),
    Sketcher.Constraint("Symmetric", 12, 3, 33, 3, -2),
    Sketcher.Constraint("Symmetric", 11, 3, 34, 3, -2),
    Sketcher.Constraint("Symmetric", 10, 3, 35, 3, -2),
    Sketcher.Constraint("Symmetric", 9, 3, 36, 3, -2),
    Sketcher.Constraint("Symmetric", 8, 3, 37, 3, -2),
    Sketcher.Constraint("Symmetric", 7, 3, 38, 3, -2),
    Sketcher.Constraint("Symmetric", 6, 3, 39, 3, -2),
    Sketcher.Constraint("Symmetric", 5, 3, 40, 3, -2),
    Sketcher.Constraint("Symmetric", 4, 3, 41, 3, -2),
    Sketcher.Constraint("Symmetric", 3, 3, 42, 3, -2),
    Sketcher.Constraint("Symmetric", 2, 3, 43, 3, -2),
    Sketcher.Constraint("Symmetric", 1, 3, 44, 3, -2),
    Sketcher.Constraint("Symmetric", 0, 3, 45, 3, -2),
    Sketcher.Constraint("Horizontal", 1, 3, 3, 3),
    Sketcher.Constraint("Horizontal", 8, 3, 12, 3),
    Sketcher.Constraint("Horizontal", 7, 3, 13, 3),
    Sketcher.Constraint("Horizontal", 6, 3, 14, 3),
    Sketcher.Constraint("Horizontal", 5, 3, 15, 3),
    Sketcher.Constraint("Horizontal", 4, 3, 16, 3),
    Sketcher.Constraint("Horizontal", 2, 3, 17, 3),
    Sketcher.Constraint("Horizontal", 11, 3, 18, 3),
    Sketcher.Constraint("Horizontal", 20, 3, 21, 3),
    Sketcher.Constraint("Horizontal", 19, 3, 22, 3),
    Sketcher.Constraint("Vertical", 0, 3, 1, 3),
    Sketcher.Constraint("Vertical", 2, 3, 4, 3),
    Sketcher.Constraint("Vertical", 4, 3, 5, 3),
    Sketcher.Constraint("Vertical", 5, 3, 6, 3),
    Sketcher.Constraint("Vertical", 6, 3, 7, 3),
    Sketcher.Constraint("Vertical", 7, 3, 8, 3),
    Sketcher.Constraint("Vertical", 8, 3, 9, 3),
    Sketcher.Constraint("Vertical", 3, 3, 12, 3),
    Sketcher.Constraint("Vertical", 12, 3, 13, 3),
    Sketcher.Constraint("Vertical", 13, 3, 14, 3),
    Sketcher.Constraint("Vertical", 14, 3, 15, 3),
    Sketcher.Constraint("Vertical", 15, 3, 16, 3),
    Sketcher.Constraint("Vertical", 16, 3, 17, 3),
    Sketcher.Constraint("Vertical", 10, 3, 18, 3),
    Sketcher.Constraint("Vertical", 19, 3, 20, 3),
    Sketcher.Constraint("Vertical", 21, 3, 22, 3),
    Sketcher.Constraint("Diameter", 0, 1.0),
    Sketcher.Constraint("DistanceX", -1, 1, 0, 3, 57.0),
    Sketcher.Constraint("DistanceY", -1, 1, 0, 3, 56.0),
    Sketcher.Constraint("DistanceY", -1, 1, 2, 3, 66.0),
    Sketcher.Constraint("DistanceX", -1, 1, 3, 3, 43.0),
    Sketcher.Constraint("DistanceY", 10, 3, -1, 1, 61.0),
    Sketcher.Constraint("DistanceX", -1, 1, 11, 3, 33.0),
    Sketcher.Constraint("DistanceY", 11, 3, -1, 1, 86.0),
    Sketcher.Constraint("DistanceY", 19, 3, -1, 1, 59.0),
    Sketcher.Constraint("DistanceY", 6, 3, 5, 3, 16.0),
    Sketcher.Constraint("DistanceY", 8, 3, 7, 3, 25.0),
    Sketcher.Constraint("DistanceX", 23, 3, 19, 3, 35.0),
    Sketcher.Constraint("DistanceY", -1, 1, 1, 3, 45.8),
    Sketcher.Constraint("DistanceX", -1, 1, 2, 3, 45.2),
    Sketcher.Constraint("DistanceY", -1, 1, 4, 3, 30.5),
    Sketcher.Constraint("DistanceY", -1, 1, 5, 3, 10.3),
    Sketcher.Constraint("DistanceY", 7, 3, -1, 1, 25.9),
    Sketcher.Constraint("DistanceY", 9, 3, -1, 1, 71.1),
    Sketcher.Constraint("DistanceX", -1, 1, 10, 3, 30.8),
    Sketcher.Constraint("DistanceX", -1, 1, 19, 3, 25.1),
    Sketcher.Constraint("DistanceY", 20, 3, -1, 1, 61.2),
])
pocket2 = body.newObject("PartDesign::Pocket", "Pocket001")
pocket2.Profile = sketch3
pocket2.Type = "ThroughAll"
pocket2.Reversed = True

# Sketch on XY plane
sketch4 = body.newObject("Sketcher::SketchObject", "Sketch003")
sketch4.AttachmentSupport = (doc.getObject("XY_Plane"), [""])
sketch4.MapMode = "FlatFace"
sketch4.addGeometry([
    Part.Circle(Vector(58.2, -76.2, 0), Vector(0, 0, 1), 1.5),
    Part.Circle(Vector(50.2, -76.2, 0), Vector(0, 0, 1), 1.5),
    Part.Circle(Vector(-58.2, -76.2, 0), Vector(0, 0, 1), 1.5),
    Part.Circle(Vector(-50.2, -76.2, 0), Vector(0, 0, 1), 1.5),
], False)
sketch4.addConstraint([
    Sketcher.Constraint("Equal", 0, 1),
    Sketcher.Constraint("Equal", 1, 2),
    Sketcher.Constraint("Equal", 2, 3),
    Sketcher.Constraint("Symmetric", 0, 3, 2, 3, -2),
    Sketcher.Constraint("Symmetric", 1, 3, 3, 3, -2),
    Sketcher.Constraint("Horizontal", 0, 3, 1, 3),
    Sketcher.Constraint("Diameter", 0, 3.0),
    Sketcher.Constraint("DistanceX", 1, 3, 0, 3, 8.0),
    Sketcher.Constraint("DistanceX", -1, 1, 0, 3, 58.2),
    Sketcher.Constraint("DistanceY", 0, 3, -1, 1, 76.2),
])
pocket3 = body.newObject("PartDesign::Pocket", "Pocket002")
pocket3.Profile = sketch4
pocket3.Length = 5
pocket3.Reversed = True

# Sketch on XY plane
sketch5 = body.newObject("Sketcher::SketchObject", "Sketch004")
sketch5.AttachmentSupport = (doc.getObject("XY_Plane"), [""])
sketch5.MapMode = "FlatFace"
sketch5.addGeometry([
    Part.Circle(Vector(53.5, 41, 0), Vector(0, 0, 1), 1.5),
    Part.Circle(Vector(70.5, 41, 0), Vector(0, 0, 1), 1.5),
    Part.Circle(Vector(-53.5, 41, 0), Vector(0, 0, 1), 1.5),
    Part.Circle(Vector(-70.5, 41, 0), Vector(0, 0, 1), 1.5),
], False)
sketch5.addConstraint([
    Sketcher.Constraint("Equal", 0, 1),
    Sketcher.Constraint("Equal", 1, 2),
    Sketcher.Constraint("Equal", 2, 3),
    Sketcher.Constraint("Symmetric", 0, 3, 2, 3, -2),
    Sketcher.Constraint("Symmetric", 1, 3, 3, 3, -2),
    Sketcher.Constraint("Horizontal", 0, 3, 1, 3),
    Sketcher.Constraint("Diameter", 0, 3.0),
    Sketcher.Constraint("DistanceY", -1, 1, 0, 3, 41.0),
    Sketcher.Constraint("DistanceX", 0, 3, 1, 3, 17.0),
    Sketcher.Constraint("DistanceX", 2, 3, 0, 3, 107.0),
])
pocket4 = body.newObject("PartDesign::Pocket", "Pocket003")
pocket4.Profile = sketch5
pocket4.Length = 2
pocket4.Reversed = True
doc.recompute()

fillet = body.newObject("PartDesign::Fillet", "Fillet")
fillet.Base = (pocket4, edges_at(pocket4, [
    (-62.766, 90, 1),
    (62.766, 90, 1),
    (65.5, -90, 1),
    (-65.5, -90, 1),
]))
fillet.Radius = 1

# Sketch on XY plane
sketch6 = body.newObject("Sketcher::SketchObject", "Sketch005")
sketch6.AttachmentSupport = (doc.getObject("XY_Plane"), [""])
sketch6.MapMode = "FlatFace"
sketch6.AttachmentOffset = App.Placement(Vector(0, 0, 2), App.Rotation())
sketch6.addGeometry([
    Part.LineSegment(Vector(-76, 31, 0), Vector(-76, 21, 0)),  # 0
    Part.LineSegment(Vector(-76, 21, 0), Vector(-60, 21, 0)),  # 1
    Part.LineSegment(Vector(-60, 21, 0), Vector(-60, 31, 0)),  # 2
    Part.LineSegment(Vector(-60, 31, 0), Vector(-76, 31, 0)),  # 3
    Part.LineSegment(Vector(60, 31, 0), Vector(60, 21, 0)),  # 4
    Part.LineSegment(Vector(60, 21, 0), Vector(76, 21, 0)),  # 5
    Part.LineSegment(Vector(76, 21, 0), Vector(76, 31, 0)),  # 6
    Part.LineSegment(Vector(76, 31, 0), Vector(60, 31, 0)),  # 7
], False)
sketch6.addConstraint([
    Sketcher.Constraint("Coincident", 0, 2, 1, 1),
    Sketcher.Constraint("Coincident", 1, 2, 2, 1),
    Sketcher.Constraint("Coincident", 2, 2, 3, 1),
    Sketcher.Constraint("Coincident", 3, 2, 0, 1),
    Sketcher.Constraint("Coincident", 4, 2, 5, 1),
    Sketcher.Constraint("Coincident", 5, 2, 6, 1),
    Sketcher.Constraint("Coincident", 6, 2, 7, 1),
    Sketcher.Constraint("Coincident", 7, 2, 4, 1),
    Sketcher.Constraint("Vertical", 0),
    Sketcher.Constraint("Horizontal", 1),
    Sketcher.Constraint("Vertical", 2),
    Sketcher.Constraint("Horizontal", 3),
    Sketcher.Constraint("Vertical", 4),
    Sketcher.Constraint("Horizontal", 5),
    Sketcher.Constraint("Vertical", 6),
    Sketcher.Constraint("Horizontal", 7),
    Sketcher.Constraint("Symmetric", 1, 2, 4, 2, -2),
    Sketcher.Constraint("Symmetric", 3, 2, 6, 2, -2),
    Sketcher.Constraint("DistanceX", 1, 1, 1, 2, 15.0),
    Sketcher.Constraint("DistanceY", 0, 2, 0, 1, 10.0),
    Sketcher.Constraint("DistanceY", -1, 1, 0, 2, 21.0),
    Sketcher.Constraint("DistanceX", 1, 2, 4, 2, 121.0),
])
pocket5 = body.newObject("PartDesign::Pocket", "Pocket004")
pocket5.Profile = sketch6
pocket5.Length = 10
doc.recompute()

fillet2 = body.newObject("PartDesign::Fillet", "Fillet001")
fillet2.Base = (pocket5, edges_at(pocket5, [
    (75.5, 31, 1),
    (75.5, 21, 1),
    (-75.5, 21, 1),
    (-75.5, 31, 1),
    (-60.5, 31, 1),
    (-60.5, 21, 1),
    (60.5, 21, 1),
    (60.5, 31, 1),
]))
fillet2.Radius = 2

# Sketch on XY plane
sketch7 = body.newObject("Sketcher::SketchObject", "Sketch006")
sketch7.AttachmentSupport = (doc.getObject("XY_Plane"), [""])
sketch7.MapMode = "FlatFace"
sketch7.AttachmentOffset = App.Placement(Vector(0, 0, 2), App.Rotation())
sketch7.addGeometry([
    Part.LineSegment(Vector(-20, -90, 0), Vector(-20, -130, 0)),  # 0
    Part.LineSegment(Vector(-20, -130, 0), Vector(20, -130, 0)),  # 1
    Part.LineSegment(Vector(20, -130, 0), Vector(20, -90, 0)),  # 2
    Part.LineSegment(Vector(20, -90, 0), Vector(-20, -90, 0)),  # 3
    Part.Circle(Vector(-17, -127, 0), Vector(0, 0, 1), 1.5),  # 4
    Part.Circle(Vector(17, -127, 0), Vector(0, 0, 1), 1.5),  # 5
    Part.Circle(Vector(-17, -93, 0), Vector(0, 0, 1), 1.5),  # 6
    Part.Circle(Vector(17, -93, 0), Vector(0, 0, 1), 1.5),  # 7
], False)
sketch7.addConstraint([
    Sketcher.Constraint("Coincident", 0, 2, 1, 1),
    Sketcher.Constraint("Coincident", 1, 2, 2, 1),
    Sketcher.Constraint("Coincident", 2, 2, 3, 1),
    Sketcher.Constraint("Coincident", 3, 2, 0, 1),
    Sketcher.Constraint("Vertical", 0),
    Sketcher.Constraint("Horizontal", 1),
    Sketcher.Constraint("Vertical", 2),
    Sketcher.Constraint("Horizontal", 3),
    Sketcher.Constraint("Equal", 4, 5),
    Sketcher.Constraint("Equal", 5, 6),
    Sketcher.Constraint("Equal", 6, 7),
    Sketcher.Constraint("Symmetric", 4, 3, 5, 3, -2),
    Sketcher.Constraint("Symmetric", 6, 3, 7, 3, -2),
    Sketcher.Constraint("Vertical", 4, 3, 6, 3),
    Sketcher.Constraint("Equal", 3, 0),
    Sketcher.Constraint("Diameter", 4, 3.0),
    Sketcher.Constraint("DistanceX", 1, 1, 1, 2, 40.0),
    Sketcher.Constraint("DistanceX", 4, 3, -1, 1, 17.0),
    Sketcher.Constraint("DistanceY", 4, 3, -1, 1, 127.0),
    Sketcher.Constraint("DistanceY", 6, 3, -1, 1, 93.0),
    Sketcher.Constraint("DistanceX", 0, 2, -1, 1, 20.0),
    Sketcher.Constraint("DistanceY", 0, 2, -1, 1, 130.0),
])
pad2 = body.newObject("PartDesign::Pad", "Pad001")
pad2.Profile = sketch7
pad2.Length = 2
pad2.Reversed = True
doc.recompute()

fillet3 = body.newObject("PartDesign::Fillet", "Fillet002")
fillet3.Base = (pad2, edges_at(pad2, [
    (-20, -130, 1),
    (-20, -90, 1),
    (20, -90, 1),
    (20, -130, 1),
]))
fillet3.Radius = 2

doc.recompute()
